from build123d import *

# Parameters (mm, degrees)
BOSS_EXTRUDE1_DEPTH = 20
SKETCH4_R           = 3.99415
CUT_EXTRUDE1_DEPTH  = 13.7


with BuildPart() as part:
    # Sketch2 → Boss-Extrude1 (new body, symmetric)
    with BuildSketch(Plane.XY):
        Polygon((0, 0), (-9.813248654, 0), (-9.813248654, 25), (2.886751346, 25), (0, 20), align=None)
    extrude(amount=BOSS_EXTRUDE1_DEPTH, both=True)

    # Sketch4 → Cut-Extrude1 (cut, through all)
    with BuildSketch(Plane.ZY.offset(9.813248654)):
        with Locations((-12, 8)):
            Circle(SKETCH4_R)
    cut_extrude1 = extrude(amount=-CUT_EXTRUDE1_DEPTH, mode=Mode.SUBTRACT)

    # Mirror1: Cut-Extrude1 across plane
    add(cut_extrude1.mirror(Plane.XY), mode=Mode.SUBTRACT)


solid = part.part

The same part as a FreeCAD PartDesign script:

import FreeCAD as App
import Part
import Sketcher
from FreeCAD import Vector
Q = App.Units.Quantity


def add_polygon(sketch, points):
    """Adds a closed chain of lines whose ends are joined by coincident constraints."""
    first, n = sketch.GeometryCount, len(points)
    for a, b in zip(points, points[1:] + points[:1]):
        sketch.addGeometry(Part.LineSegment(App.Vector(*a, 0), App.Vector(*b, 0)), False)
    for i in range(n):
        sketch.addConstraint(Sketcher.Constraint("Coincident", first + i, 2, first + (i + 1) % n, 1))

doc = App.newDocument("Part")
body = doc.addObject("PartDesign::Body", "Body")

# Sketch on XY plane
sketch1 = body.newObject("Sketcher::SketchObject", "Sketch")
sketch1.AttachmentSupport = (doc.getObject("XY_Plane"), [""])
sketch1.MapMode = "FlatFace"
add_polygon(sketch1, [(-10, 0), (0, 0), (0, 20), (3, 25), (-10, 25)])  # lines 0-4
sketch1.addConstraint(Sketcher.Constraint("Horizontal", 0))
sketch1.addConstraint(Sketcher.Constraint("Vertical", 1))
sketch1.addConstraint(Sketcher.Constraint("Horizontal", 3))
sketch1.addConstraint(Sketcher.Constraint("Vertical", 4))
sketch1.addConstraint(Sketcher.Constraint("Coincident", 0, 2, -1, 1))
sketch1.addConstraint(Sketcher.Constraint("DistanceY", 1, 1, 1, 2, 20.0))
sketch1.addConstraint(Sketcher.Constraint("DistanceY", 4, 2, 4, 1, 25.0))
sketch1.addConstraint(Sketcher.Constraint("Angle", 2, Q("60 deg")))
sketch1.addConstraint(Sketcher.Constraint("DistanceX", 3, 2, 3, 1, 12.7))
pad1 = body.newObject("PartDesign::Pad", "Pad")
pad1.Profile = sketch1
pad1.Length = 40
pad1.Midplane = True

# Sketch on YZ plane
sketch2 = body.newObject("Sketcher::SketchObject", "Sketch001")
sketch2.AttachmentSupport = (doc.getObject("YZ_Plane"), [""])
sketch2.MapMode = "FlatFace"
sketch2.AttachmentOffset = App.Placement(Vector(0, 0, -9.813249), App.Rotation())
sketch2.addGeometry(Part.Circle(Vector(8, -12, 0), Vector(0, 0, 1), 4), False)
sketch2.addConstraint(Sketcher.Constraint("DistanceX", -1, 1, 0, 3, 8.0))
sketch2.addConstraint(Sketcher.Constraint("DistanceY", 0, 3, -1, 1, 12.0))
sketch2.addConstraint(Sketcher.Constraint("Diameter", 0, 7.9883))
pocket1 = body.newObject("PartDesign::Pocket", "Pocket")
pocket1.Profile = sketch2
pocket1.Type = "ThroughAll"
pocket1.Reversed = True
doc.recompute()

mirrored = body.newObject("PartDesign::Mirrored", "Mirrored")
mirrored.Originals = [pocket1]
mirrored.MirrorPlane = (doc.getObject("XY_Plane"), [""])
body.Tip = mirrored

doc.recompute()
